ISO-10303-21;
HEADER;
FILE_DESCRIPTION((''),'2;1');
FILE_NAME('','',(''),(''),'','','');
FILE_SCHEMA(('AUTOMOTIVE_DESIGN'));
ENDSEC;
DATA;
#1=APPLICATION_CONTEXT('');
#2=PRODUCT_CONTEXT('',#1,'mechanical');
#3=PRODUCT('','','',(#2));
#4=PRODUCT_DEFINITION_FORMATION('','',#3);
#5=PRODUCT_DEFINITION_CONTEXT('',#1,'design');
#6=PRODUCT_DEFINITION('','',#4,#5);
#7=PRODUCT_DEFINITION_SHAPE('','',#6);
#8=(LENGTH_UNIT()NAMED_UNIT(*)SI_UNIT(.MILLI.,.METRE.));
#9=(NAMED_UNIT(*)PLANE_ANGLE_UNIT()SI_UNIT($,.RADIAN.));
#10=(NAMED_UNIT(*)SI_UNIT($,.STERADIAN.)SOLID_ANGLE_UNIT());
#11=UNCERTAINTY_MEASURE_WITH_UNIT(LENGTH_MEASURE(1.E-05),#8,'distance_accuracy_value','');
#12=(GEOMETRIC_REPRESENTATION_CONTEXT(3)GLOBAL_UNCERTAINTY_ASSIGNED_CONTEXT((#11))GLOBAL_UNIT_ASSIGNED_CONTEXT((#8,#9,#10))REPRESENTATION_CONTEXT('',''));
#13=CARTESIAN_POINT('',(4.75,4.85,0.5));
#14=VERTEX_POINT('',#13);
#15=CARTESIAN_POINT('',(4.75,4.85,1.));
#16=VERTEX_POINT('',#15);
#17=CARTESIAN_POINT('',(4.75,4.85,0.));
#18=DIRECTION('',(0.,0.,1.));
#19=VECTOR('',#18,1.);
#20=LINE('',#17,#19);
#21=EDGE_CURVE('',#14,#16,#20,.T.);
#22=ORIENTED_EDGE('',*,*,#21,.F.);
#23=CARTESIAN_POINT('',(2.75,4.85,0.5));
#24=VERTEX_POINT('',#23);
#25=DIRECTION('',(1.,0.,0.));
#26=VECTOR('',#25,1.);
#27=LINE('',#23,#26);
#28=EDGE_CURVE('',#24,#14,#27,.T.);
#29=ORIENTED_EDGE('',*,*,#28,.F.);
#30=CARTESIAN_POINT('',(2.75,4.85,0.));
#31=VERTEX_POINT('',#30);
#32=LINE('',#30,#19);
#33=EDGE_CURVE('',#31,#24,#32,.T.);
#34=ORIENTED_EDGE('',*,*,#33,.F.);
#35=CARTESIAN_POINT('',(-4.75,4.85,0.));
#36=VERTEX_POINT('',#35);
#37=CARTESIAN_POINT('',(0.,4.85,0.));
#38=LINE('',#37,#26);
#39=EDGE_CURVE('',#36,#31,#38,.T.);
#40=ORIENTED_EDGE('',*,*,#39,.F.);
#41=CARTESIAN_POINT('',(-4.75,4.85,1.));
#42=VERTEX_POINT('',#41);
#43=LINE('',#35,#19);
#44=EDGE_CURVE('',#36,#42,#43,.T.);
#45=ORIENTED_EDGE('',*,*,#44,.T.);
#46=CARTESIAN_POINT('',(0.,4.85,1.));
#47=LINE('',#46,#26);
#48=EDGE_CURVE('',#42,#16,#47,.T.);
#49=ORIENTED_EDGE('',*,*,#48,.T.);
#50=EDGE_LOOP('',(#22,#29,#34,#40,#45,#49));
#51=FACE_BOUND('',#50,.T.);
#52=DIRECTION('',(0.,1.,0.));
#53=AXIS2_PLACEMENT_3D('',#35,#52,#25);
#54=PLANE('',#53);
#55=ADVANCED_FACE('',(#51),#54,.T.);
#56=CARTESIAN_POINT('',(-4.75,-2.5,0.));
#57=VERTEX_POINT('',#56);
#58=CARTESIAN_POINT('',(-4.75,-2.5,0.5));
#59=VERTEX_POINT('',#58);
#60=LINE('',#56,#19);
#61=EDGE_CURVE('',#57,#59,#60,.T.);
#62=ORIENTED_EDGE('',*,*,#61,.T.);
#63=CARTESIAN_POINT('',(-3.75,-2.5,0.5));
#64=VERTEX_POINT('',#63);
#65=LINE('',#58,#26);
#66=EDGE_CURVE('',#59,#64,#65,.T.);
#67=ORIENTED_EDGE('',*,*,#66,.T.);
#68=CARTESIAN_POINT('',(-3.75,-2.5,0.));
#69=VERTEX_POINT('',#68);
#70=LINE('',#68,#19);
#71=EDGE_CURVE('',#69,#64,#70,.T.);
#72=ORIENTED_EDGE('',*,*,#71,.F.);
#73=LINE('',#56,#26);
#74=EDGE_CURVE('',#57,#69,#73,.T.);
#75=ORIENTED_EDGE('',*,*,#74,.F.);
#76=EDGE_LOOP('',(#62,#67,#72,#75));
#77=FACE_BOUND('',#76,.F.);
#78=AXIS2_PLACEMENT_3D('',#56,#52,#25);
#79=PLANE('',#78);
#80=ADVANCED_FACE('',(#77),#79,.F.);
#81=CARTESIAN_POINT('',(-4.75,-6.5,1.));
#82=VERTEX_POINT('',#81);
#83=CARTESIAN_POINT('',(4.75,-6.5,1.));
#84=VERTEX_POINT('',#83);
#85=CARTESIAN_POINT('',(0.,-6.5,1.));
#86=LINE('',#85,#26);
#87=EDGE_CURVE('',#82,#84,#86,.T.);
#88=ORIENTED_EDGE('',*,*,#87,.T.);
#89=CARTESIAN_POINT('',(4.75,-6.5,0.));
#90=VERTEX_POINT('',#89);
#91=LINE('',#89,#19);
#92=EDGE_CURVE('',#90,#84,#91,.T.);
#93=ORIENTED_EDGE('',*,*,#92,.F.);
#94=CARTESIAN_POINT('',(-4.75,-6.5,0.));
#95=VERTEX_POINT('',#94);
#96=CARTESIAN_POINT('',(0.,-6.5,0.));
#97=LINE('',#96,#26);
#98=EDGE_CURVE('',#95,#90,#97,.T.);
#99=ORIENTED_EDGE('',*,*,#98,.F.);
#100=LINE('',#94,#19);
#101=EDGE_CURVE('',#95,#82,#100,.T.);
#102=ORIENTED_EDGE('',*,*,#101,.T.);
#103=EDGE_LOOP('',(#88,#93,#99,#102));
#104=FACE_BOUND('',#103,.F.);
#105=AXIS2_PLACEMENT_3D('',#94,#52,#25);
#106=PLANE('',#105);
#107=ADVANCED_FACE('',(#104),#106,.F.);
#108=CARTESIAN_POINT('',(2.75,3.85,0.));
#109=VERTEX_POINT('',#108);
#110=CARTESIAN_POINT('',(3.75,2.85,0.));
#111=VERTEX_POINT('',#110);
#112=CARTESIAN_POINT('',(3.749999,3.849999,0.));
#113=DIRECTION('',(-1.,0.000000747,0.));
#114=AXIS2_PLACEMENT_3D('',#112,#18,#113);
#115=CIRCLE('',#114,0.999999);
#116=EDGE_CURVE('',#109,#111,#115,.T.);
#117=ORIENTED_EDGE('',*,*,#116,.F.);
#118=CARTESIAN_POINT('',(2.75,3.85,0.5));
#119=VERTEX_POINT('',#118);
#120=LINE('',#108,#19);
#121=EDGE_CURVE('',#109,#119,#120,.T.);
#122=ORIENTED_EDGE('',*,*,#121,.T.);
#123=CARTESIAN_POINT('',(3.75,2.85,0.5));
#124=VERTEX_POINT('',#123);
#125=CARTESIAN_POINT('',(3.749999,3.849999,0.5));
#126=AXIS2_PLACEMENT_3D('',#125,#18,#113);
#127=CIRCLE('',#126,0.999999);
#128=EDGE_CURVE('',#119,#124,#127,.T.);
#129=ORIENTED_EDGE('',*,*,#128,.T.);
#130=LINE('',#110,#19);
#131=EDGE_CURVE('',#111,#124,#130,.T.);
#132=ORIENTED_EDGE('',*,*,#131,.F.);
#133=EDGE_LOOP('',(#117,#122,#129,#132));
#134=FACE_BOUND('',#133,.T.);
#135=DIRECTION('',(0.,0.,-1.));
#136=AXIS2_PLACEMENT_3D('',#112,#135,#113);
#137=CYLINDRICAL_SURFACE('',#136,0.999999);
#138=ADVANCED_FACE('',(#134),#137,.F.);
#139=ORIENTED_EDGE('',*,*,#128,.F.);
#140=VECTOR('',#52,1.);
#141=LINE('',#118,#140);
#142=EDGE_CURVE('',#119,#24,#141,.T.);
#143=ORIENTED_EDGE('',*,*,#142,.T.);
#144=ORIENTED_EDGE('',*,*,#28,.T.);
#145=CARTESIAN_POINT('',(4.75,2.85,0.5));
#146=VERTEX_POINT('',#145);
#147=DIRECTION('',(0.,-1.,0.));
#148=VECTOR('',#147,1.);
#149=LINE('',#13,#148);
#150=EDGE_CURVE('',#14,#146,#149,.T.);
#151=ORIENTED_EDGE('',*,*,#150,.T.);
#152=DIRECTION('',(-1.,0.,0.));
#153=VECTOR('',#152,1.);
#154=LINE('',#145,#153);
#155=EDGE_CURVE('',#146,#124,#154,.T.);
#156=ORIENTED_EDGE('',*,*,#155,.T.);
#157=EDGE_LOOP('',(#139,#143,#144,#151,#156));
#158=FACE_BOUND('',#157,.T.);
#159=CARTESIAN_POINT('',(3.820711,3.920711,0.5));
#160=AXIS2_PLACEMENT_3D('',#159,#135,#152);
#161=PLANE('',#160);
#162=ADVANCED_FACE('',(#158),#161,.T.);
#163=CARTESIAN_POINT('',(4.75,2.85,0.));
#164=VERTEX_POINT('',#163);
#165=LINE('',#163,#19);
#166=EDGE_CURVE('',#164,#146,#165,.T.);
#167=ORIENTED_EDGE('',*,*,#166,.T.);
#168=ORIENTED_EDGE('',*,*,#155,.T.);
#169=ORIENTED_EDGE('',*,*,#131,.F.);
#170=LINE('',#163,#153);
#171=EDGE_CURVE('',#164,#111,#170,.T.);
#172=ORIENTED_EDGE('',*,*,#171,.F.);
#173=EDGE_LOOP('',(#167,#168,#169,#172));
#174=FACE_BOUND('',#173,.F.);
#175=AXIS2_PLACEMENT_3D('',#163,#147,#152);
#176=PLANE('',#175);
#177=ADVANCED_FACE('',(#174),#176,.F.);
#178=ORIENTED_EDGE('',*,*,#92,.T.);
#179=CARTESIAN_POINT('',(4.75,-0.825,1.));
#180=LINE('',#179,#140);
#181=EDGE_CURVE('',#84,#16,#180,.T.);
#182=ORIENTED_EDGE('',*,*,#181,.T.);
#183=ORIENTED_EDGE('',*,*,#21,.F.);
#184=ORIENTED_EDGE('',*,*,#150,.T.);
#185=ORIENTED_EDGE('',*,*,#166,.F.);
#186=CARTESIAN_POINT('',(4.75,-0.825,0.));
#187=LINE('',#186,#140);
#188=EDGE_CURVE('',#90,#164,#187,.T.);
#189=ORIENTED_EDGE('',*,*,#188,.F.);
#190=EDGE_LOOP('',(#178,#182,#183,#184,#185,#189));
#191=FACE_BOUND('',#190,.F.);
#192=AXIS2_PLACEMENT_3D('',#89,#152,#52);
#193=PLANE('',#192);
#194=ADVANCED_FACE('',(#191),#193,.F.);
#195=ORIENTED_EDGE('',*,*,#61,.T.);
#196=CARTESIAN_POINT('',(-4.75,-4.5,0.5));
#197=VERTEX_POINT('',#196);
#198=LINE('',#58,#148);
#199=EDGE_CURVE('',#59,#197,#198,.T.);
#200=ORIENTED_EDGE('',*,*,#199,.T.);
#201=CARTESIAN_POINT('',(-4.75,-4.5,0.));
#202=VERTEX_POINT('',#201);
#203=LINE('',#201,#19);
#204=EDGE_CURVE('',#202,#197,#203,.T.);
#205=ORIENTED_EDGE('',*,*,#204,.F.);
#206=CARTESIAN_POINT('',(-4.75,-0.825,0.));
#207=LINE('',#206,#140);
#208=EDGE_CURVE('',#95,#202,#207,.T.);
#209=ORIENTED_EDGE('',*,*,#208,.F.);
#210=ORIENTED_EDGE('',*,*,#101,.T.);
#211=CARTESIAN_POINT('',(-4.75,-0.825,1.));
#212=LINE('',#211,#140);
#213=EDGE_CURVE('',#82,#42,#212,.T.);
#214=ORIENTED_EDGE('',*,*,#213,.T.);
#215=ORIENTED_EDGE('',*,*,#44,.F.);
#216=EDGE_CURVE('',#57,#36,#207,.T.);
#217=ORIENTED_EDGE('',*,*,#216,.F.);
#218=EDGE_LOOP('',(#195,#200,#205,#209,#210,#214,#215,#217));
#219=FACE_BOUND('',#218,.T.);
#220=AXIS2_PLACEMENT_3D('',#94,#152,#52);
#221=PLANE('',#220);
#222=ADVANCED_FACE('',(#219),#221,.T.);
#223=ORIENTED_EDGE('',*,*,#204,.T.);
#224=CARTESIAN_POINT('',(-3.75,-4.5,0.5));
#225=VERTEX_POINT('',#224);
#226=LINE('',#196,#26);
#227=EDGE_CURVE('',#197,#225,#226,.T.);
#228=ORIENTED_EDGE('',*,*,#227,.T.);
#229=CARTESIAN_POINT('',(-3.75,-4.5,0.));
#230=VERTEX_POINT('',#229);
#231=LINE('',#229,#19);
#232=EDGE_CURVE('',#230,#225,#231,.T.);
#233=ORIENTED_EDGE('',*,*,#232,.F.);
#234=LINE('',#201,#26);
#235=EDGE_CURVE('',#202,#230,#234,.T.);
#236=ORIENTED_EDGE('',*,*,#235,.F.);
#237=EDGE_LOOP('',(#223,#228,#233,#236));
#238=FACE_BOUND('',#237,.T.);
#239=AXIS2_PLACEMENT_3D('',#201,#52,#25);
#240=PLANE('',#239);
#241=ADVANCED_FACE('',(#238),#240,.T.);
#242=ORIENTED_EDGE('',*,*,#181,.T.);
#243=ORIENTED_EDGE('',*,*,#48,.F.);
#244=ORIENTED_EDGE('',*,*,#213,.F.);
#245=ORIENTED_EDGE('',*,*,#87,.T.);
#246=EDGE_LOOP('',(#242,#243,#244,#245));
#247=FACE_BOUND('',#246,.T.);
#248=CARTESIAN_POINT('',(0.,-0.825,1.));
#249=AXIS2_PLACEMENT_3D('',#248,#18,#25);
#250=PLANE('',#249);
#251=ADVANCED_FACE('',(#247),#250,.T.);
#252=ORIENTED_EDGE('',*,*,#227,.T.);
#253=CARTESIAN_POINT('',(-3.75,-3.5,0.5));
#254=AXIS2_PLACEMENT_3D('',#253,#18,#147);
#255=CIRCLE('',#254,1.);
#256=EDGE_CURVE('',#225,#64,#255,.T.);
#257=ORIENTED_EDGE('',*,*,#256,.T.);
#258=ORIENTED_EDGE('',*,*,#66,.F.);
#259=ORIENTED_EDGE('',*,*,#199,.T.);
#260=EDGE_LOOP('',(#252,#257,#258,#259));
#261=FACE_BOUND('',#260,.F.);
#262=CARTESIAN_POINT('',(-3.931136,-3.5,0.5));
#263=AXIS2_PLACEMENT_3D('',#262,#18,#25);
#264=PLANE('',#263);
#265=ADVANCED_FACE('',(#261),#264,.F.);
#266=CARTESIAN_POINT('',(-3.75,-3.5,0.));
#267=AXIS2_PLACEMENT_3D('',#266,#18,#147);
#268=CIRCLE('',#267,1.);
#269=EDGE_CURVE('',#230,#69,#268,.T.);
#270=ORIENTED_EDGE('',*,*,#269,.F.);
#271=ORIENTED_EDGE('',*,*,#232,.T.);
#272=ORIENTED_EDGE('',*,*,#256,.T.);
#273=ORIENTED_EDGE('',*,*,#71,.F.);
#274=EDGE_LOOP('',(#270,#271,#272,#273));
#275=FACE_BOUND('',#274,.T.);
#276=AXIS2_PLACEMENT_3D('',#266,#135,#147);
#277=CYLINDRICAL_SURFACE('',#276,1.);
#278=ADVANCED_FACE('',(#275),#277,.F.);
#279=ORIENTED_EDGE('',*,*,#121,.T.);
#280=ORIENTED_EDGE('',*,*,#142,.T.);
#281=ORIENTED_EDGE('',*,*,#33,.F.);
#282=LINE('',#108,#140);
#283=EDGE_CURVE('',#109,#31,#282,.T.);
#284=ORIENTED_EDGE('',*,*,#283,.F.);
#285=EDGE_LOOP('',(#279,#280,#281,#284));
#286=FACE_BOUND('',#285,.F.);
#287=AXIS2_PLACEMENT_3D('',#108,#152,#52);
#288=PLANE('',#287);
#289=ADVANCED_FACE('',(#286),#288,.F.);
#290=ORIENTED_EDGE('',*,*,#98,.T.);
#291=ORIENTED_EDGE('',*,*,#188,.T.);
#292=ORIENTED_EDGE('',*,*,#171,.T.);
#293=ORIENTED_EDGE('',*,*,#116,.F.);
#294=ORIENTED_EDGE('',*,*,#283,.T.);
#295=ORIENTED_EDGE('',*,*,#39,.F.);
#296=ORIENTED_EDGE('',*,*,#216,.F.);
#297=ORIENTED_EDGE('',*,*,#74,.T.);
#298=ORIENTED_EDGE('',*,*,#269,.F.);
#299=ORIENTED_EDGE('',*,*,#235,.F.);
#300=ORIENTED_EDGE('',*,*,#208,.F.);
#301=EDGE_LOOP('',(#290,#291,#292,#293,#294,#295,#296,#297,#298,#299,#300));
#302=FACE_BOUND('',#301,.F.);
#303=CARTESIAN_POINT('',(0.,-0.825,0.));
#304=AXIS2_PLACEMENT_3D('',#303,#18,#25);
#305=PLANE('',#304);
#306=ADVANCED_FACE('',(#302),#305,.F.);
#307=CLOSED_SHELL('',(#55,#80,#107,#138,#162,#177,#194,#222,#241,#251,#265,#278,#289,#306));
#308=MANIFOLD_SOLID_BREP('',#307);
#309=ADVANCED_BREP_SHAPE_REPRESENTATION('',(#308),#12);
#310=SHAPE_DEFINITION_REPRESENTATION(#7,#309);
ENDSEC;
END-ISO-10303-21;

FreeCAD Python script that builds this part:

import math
import FreeCAD as App
import Part
import Sketcher
Q = App.Units.Quantity

doc = App.newDocument("Part")
body = doc.addObject("PartDesign::Body", "Body")

# Sketch on XY plane
sketch1 = body.newObject("Sketcher::SketchObject", "Sketch")
sketch1.AttachmentSupport = (doc.getObject("XY_Plane"), [""])
sketch1.MapMode = "FlatFace"
sketch1.addGeometry([
    Part.LineSegment(App.Vector(-5, 5, 0), App.Vector(-5, -6, 0)),
    Part.LineSegment(App.Vector(-5, -6, 0), App.Vector(5, -6, 0)),
    Part.LineSegment(App.Vector(5, -6, 0), App.Vector(5, 5, 0)),
    Part.LineSegment(App.Vector(5, 5, 0), App.Vector(-5, 5, 0)),
], False)
sketch1.addConstraint([
    Sketcher.Constraint("Coincident", 0, 2, 1, 1),
    Sketcher.Constraint("Coincident", 1, 2, 2, 1),
    Sketcher.Constraint("Coincident", 2, 2, 3, 1),
    Sketcher.Constraint("Coincident", 3, 2, 0, 1),
    Sketcher.Constraint("Vertical", 0),
    Sketcher.Constraint("Horizontal", 1),
    Sketcher.Constraint("Vertical", 2),
    Sketcher.Constraint("Horizontal", 3),
    Sketcher.Constraint("DistanceX", 1, 1, 1, 2, Q("9.5 mm")),
    Sketcher.Constraint("DistanceY", 0, 2, 0, 1, Q("11.35 mm")),
    Sketcher.Constraint("DistanceY", 0, 2, -1, 1, Q("6.5 mm")),
    Sketcher.Constraint("DistanceX", 0, 2, -1, 1, Q("4.75 mm")),
])
pad1 = body.newObject("PartDesign::Pad", "Pad")
pad1.Profile = sketch1
pad1.Length = 1

# Sketch on XY plane
sketch2 = body.newObject("Sketcher::SketchObject", "Sketch001")
sketch2.AttachmentSupport = (doc.getObject("XY_Plane"), [""])
sketch2.MapMode = "FlatFace"
sketch2.addGeometry([
    Part.LineSegment(App.Vector(4.8, 4.8, 0), App.Vector(2.8, 4.8, 0)),  # 0
    Part.LineSegment(App.Vector(2.8, 4.8, 0), App.Vector(2.8, 3.9, 0)),  # 1
    Part.ArcOfCircle(Part.Circle(App.Vector(3.7, 3.8, 0), App.Vector(0, 0, 1), 1), math.radians(180), math.radians(270)),  # 2
    Part.LineSegment(App.Vector(3.8, 2.9, 0), App.Vector(4.8, 2.9, 0)),  # 3
    Part.LineSegment(App.Vector(4.8, 2.9, 0), App.Vector(4.8, 4.8, 0)),  # 4
], False)
sketch2.addConstraint([
    Sketcher.Constraint("Coincident", 0, 2, 1, 1),
    Sketcher.Constraint("Tangent", 1, 2, 2, 1),
    Sketcher.Constraint("Tangent", 2, 2, 3, 1),
    Sketcher.Constraint("Coincident", 3, 2, 4, 1),
    Sketcher.Constraint("Coincident", 4, 2, 0, 1),
    Sketcher.Constraint("Horizontal", 0),
    Sketcher.Constraint("Vertical", 1),
    Sketcher.Constraint("Horizontal", 3),
    Sketcher.Constraint("Vertical", 4),
    Sketcher.Constraint("Equal", 3, 1),
    Sketcher.Constraint("Radius", 2, Q("0.999999 mm")),
    Sketcher.Constraint("DistanceX", 0, 2, 0, 1, Q("2 mm")),
    Sketcher.Constraint("DistanceX", -1, 1, 2, 3, Q("3.749999 mm")),
    Sketcher.Constraint("DistanceY", -1, 1, 2, 3, Q("3.849999 mm")),
])
pocket1 = body.newObject("PartDesign::Pocket", "Pocket")
pocket1.Profile = sketch2
pocket1.Length = 0.5
pocket1.Reversed = True

# Sketch on XY plane
sketch3 = body.newObject("Sketcher::SketchObject", "Sketch002")
sketch3.AttachmentSupport = (doc.getObject("XY_Plane"), [""])
sketch3.MapMode = "FlatFace"
sketch3.addGeometry([
    Part.LineSegment(App.Vector(-4.8, -2.5, 0), App.Vector(-4.8, -4.5, 0)),
    Part.LineSegment(App.Vector(-4.8, -4.5, 0), App.Vector(-3.8, -4.5, 0)),
    Part.ArcOfCircle(Part.Circle(App.Vector(-3.8, -3.5, 0), App.Vector(0, 0, 1), 1), math.radians(-90), math.radians(90)),
    Part.LineSegment(App.Vector(-3.8, -2.5, 0), App.Vector(-4.8, -2.5, 0)),
], False)
sketch3.addConstraint([
    Sketcher.Constraint("Coincident", 0, 2, 1, 1),
    Sketcher.Constraint("Tangent", 1, 2, 2, 1),
    Sketcher.Constraint("Tangent", 2, 2, 3, 1),
    Sketcher.Constraint("Coincident", 3, 2, 0, 1),
    Sketcher.Constraint("Vertical", 0),
    Sketcher.Constraint("Horizontal", 1),
    Sketcher.Constraint("Horizontal", 3),
    Sketcher.Constraint("Radius", 2, Q("1 mm")),
    Sketcher.Constraint("DistanceX", 1, 1, 1, 2, Q("1 mm")),
    Sketcher.Constraint("DistanceY", 2, 3, -1, 1, Q("3.5 mm")),
    Sketcher.Constraint("DistanceX", 2, 3, -1, 1, Q("3.75 mm")),
])
pocket2 = body.newObject("PartDesign::Pocket", "Pocket001")
pocket2.Profile = sketch3
pocket2.Length = 0.5
pocket2.Reversed = True

doc.recompute()
